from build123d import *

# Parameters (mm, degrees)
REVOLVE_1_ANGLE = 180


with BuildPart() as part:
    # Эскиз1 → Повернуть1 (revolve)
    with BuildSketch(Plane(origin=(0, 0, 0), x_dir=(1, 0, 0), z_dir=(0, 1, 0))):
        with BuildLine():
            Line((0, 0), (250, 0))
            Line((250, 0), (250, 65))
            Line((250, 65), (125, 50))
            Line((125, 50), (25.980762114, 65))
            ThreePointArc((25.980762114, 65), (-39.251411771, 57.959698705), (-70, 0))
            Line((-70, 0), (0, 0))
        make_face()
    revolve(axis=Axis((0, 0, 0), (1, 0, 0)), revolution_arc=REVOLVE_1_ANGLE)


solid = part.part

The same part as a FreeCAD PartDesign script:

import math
import FreeCAD as App
import Part
import Sketcher

V = App.Vector
Q = App.Units.Quantity

doc = App.newDocument("Part")
body = doc.addObject("PartDesign::Body", "Body")

sketch1 = body.newObject("Sketcher::SketchObject", "Sketch")
sketch1.AttachmentSupport = (doc.getObject("XZ_Plane"), [""])
sketch1.MapMode = "FlatFace"
sketch1.addGeometry(Part.LineSegment(V(250, 0, 0), V(250, -65, 0)), False)
sketch1.addGeometry(Part.LineSegment(V(250, -65, 0), V(125, -50, 0)), False)
sketch1.addGeometry(Part.LineSegment(V(125, -50, 0), V(26, -65, 0)), False)
sketch1.addGeometry(Part.ArcOfCircle(Part.Circle(V(0, 0, 0), V(0, 0, 1), 70), math.radians(180), math.radians(292)), False)
sketch1.addGeometry(Part.LineSegment(V(-70, 0, 0), V(250, 0, 0)), False)
sketch1.addConstraint(Sketcher.Constraint("Coincident", 0, 2, 1, 1))
sketch1.addConstraint(Sketcher.Constraint("Coincident", 1, 2, 2, 1))
sketch1.addConstraint(Sketcher.Constraint("Coincident", 2, 2, 3, 2))
sketch1.addConstraint(Sketcher.Constraint("Coincident", 3, 1, 4, 1))
sketch1.addConstraint(Sketcher.Constraint("Coincident", 4, 2, 0, 1))
sketch1.addConstraint(Sketcher.Constraint("Vertical", 0))
sketch1.addConstraint(Sketcher.Constraint("Horizontal", 4))
sketch1.addConstraint(Sketcher.Constraint("Coincident", 3, 3, -1, 1))
sketch1.addConstraint(Sketcher.Constraint("PointOnObject", 3, 1, -1))
sketch1.addConstraint(Sketcher.Constraint("Horizontal", 0, 2, 2, 2))
sketch1.addConstraint(Sketcher.Constraint("Radius", 3, Q("70 mm")))
sketch1.addConstraint(Sketcher.Constraint("DistanceX", 4, 1, 4, 2, Q("320 mm")))
sketch1.addConstraint(Sketcher.Constraint("DistanceY", 0, 2, 0, 1, Q("65 mm")))
sketch1.addConstraint(Sketcher.Constraint("DistanceX", -1, 1, 1, 2, Q("125 mm")))
sketch1.addConstraint(Sketcher.Constraint("DistanceY", 1, 2, -1, 1, Q("50 mm")))
revolution = body.newObject("PartDesign::Revolution", "Revolution")
revolution.Profile = sketch1
revolution.ReferenceAxis = (sketch1, ["H_Axis"])
revolution.Angle = 180

doc.recompute()
